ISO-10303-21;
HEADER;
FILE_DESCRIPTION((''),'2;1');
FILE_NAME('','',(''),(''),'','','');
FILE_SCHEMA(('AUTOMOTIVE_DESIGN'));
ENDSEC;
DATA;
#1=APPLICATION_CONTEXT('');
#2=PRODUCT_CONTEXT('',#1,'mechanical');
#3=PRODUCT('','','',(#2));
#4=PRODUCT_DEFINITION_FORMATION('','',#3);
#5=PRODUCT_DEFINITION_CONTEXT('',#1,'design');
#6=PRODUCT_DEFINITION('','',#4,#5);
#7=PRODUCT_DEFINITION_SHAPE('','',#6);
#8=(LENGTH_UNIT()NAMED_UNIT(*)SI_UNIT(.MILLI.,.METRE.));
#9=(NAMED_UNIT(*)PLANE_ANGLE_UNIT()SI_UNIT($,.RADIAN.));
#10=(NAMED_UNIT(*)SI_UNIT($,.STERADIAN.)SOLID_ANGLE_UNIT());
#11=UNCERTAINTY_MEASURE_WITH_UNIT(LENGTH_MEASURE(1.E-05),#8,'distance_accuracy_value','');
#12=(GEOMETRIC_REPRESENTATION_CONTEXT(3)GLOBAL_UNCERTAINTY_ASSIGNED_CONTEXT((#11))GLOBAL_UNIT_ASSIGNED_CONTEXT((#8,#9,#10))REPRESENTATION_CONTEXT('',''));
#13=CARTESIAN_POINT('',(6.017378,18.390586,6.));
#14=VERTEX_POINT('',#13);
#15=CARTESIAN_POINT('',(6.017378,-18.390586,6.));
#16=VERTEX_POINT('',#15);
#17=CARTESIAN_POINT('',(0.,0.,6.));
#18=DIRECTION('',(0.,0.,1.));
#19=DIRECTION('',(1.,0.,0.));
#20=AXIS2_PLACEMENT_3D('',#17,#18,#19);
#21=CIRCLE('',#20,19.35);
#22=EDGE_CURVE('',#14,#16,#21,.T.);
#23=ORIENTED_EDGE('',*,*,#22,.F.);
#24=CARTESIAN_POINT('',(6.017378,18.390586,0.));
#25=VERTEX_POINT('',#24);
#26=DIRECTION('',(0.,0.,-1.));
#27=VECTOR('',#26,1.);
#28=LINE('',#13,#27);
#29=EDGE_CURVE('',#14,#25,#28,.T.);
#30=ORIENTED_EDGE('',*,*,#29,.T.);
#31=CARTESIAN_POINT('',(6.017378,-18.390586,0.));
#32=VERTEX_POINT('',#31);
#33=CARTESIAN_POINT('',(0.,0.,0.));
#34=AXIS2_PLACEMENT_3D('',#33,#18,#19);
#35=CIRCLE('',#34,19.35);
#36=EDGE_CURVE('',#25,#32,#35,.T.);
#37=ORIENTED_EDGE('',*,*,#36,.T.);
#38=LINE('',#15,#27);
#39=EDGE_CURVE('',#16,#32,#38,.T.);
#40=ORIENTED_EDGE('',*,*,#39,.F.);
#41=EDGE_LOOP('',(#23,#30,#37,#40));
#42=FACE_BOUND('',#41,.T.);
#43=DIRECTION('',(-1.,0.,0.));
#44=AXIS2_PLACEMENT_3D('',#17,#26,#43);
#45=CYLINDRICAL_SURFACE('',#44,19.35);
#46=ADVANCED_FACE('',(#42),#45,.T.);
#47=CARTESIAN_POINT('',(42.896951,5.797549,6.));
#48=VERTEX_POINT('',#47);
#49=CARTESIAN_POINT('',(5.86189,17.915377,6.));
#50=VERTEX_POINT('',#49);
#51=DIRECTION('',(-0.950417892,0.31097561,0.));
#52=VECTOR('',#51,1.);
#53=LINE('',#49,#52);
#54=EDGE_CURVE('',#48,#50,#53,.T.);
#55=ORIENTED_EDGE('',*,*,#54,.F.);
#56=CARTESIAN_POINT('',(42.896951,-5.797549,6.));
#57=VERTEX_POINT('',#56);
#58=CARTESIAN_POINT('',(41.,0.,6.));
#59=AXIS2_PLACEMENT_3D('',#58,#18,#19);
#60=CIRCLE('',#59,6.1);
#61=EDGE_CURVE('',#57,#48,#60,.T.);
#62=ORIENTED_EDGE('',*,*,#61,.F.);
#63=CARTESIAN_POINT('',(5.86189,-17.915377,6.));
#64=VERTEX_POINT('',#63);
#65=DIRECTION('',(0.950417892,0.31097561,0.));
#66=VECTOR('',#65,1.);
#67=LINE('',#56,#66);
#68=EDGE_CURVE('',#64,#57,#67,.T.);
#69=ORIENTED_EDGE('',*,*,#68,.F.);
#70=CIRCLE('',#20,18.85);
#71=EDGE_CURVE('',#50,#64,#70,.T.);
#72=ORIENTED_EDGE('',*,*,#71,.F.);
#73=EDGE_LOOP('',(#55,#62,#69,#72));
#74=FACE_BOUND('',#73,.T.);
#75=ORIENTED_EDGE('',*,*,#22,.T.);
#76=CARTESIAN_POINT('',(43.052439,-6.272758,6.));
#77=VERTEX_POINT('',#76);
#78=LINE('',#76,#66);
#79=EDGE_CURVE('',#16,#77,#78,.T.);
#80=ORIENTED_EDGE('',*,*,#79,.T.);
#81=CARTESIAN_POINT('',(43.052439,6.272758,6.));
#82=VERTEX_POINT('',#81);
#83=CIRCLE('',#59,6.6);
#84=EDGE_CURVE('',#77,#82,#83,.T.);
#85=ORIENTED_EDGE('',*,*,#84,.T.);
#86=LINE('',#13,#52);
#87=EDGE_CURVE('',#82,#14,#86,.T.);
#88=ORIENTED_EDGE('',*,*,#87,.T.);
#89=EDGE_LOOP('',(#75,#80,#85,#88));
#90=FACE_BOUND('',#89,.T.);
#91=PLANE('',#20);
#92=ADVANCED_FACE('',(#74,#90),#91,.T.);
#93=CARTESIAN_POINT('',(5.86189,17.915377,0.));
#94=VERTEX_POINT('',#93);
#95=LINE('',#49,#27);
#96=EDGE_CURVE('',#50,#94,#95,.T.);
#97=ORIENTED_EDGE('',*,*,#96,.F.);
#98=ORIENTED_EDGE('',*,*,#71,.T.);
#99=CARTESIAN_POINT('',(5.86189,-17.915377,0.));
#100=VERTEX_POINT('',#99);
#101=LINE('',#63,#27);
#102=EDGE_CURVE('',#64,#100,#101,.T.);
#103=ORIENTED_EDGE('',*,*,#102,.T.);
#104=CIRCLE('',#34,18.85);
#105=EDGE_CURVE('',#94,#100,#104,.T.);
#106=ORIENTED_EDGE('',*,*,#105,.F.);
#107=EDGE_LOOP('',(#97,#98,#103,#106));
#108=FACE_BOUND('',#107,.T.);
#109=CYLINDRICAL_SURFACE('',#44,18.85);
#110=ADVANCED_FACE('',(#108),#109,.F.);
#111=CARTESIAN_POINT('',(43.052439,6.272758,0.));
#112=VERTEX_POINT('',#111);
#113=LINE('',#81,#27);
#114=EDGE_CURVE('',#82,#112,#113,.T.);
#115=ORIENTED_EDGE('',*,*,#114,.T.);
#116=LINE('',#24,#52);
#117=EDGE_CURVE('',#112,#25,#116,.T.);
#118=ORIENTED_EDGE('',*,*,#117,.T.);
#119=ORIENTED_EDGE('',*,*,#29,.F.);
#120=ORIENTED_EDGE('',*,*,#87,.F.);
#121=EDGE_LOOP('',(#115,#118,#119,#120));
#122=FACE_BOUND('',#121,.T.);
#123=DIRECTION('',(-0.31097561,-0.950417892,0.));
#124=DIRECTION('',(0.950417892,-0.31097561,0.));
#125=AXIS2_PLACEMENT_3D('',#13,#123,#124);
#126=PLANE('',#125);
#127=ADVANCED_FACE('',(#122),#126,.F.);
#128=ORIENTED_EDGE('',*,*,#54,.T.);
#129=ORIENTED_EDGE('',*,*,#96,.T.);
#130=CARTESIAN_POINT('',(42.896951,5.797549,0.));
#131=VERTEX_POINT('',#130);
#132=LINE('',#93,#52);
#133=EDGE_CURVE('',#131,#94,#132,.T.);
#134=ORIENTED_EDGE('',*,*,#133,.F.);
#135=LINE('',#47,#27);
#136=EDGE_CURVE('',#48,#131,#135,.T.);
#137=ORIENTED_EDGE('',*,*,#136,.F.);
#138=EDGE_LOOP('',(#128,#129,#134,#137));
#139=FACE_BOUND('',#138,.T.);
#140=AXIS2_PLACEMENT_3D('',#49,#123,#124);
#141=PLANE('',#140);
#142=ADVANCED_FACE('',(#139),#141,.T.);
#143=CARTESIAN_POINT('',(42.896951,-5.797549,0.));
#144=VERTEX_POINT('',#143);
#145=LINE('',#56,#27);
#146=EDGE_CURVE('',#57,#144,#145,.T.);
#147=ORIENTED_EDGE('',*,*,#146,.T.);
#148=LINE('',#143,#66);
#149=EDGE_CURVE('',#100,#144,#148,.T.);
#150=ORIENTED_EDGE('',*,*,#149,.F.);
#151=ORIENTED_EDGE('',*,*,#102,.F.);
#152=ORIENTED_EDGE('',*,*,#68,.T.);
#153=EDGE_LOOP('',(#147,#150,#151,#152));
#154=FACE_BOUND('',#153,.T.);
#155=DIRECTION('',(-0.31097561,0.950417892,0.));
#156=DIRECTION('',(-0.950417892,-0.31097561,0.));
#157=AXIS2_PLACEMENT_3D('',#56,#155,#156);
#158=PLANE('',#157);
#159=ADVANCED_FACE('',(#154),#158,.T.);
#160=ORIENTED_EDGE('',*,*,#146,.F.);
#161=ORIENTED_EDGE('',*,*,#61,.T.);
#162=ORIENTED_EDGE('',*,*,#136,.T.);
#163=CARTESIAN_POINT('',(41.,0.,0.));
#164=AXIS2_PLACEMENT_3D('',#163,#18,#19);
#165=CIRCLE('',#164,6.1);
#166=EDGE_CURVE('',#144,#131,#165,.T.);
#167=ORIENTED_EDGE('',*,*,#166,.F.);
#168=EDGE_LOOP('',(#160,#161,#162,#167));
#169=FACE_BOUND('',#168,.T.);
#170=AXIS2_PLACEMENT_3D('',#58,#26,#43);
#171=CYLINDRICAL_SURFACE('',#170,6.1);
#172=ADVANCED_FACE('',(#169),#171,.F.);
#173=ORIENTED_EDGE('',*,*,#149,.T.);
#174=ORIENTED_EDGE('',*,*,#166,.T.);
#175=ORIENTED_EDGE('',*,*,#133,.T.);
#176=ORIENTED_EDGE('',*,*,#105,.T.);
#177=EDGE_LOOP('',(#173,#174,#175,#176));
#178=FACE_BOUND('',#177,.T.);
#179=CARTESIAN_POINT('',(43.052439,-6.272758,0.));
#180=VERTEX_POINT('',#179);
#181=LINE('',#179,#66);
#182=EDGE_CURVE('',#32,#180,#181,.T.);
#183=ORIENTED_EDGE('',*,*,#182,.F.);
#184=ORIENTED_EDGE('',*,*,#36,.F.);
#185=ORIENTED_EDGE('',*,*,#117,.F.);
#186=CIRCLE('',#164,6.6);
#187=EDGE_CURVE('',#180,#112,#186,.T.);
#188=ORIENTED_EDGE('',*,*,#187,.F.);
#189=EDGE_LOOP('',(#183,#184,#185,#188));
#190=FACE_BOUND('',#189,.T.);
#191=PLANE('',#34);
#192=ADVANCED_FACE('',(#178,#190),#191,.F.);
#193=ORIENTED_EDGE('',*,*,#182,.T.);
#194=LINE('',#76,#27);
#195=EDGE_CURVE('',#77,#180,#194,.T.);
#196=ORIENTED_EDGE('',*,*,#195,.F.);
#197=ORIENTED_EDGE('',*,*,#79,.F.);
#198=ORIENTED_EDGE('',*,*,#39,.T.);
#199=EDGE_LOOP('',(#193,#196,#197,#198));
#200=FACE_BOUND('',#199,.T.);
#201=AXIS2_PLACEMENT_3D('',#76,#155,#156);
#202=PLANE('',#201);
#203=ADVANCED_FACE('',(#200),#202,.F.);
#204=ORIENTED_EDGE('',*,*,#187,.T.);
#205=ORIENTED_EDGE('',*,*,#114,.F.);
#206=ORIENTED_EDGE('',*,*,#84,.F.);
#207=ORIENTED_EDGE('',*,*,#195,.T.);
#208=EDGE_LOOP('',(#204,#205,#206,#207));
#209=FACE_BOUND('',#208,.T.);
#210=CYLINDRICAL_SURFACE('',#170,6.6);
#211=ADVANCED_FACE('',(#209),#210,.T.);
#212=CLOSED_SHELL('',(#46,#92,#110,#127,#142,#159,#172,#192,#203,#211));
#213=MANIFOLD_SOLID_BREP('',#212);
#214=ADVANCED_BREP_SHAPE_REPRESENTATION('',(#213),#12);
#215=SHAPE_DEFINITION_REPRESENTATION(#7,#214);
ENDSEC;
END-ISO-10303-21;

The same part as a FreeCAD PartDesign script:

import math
import FreeCAD as App
import Part
import Sketcher

V = App.Vector

doc = App.newDocument("Part")
body = doc.addObject("PartDesign::Body", "Body")

# Sketch on XY plane
sketch1 = body.newObject("Sketcher::SketchObject", "Sketch")
sketch1.AttachmentSupport = (doc.getObject("XY_Plane"), [""])
sketch1.MapMode = "FlatFace"
sketch1.addGeometry(Part.LineSegment(V(6, -18, 0), V(43, -6, 0)), False)
sketch1.addGeometry(Part.ArcOfCircle(Part.Circle(V(41, 0, 0), V(0, 0, 1), 7), math.radians(-72), math.radians(72)), False)
sketch1.addGeometry(Part.LineSegment(V(43, 6, 0), V(6, 18, 0)), False)
sketch1.addGeometry(Part.ArcOfCircle(Part.Circle(V(0, 0, 0), V(0, 0, 1), 19), math.radians(72), math.radians(288)), False)
sketch1.addGeometry(Part.LineSegment(V(6, 18, 0), V(43, 6, 0)), False)
sketch1.addGeometry(Part.ArcOfCircle(Part.Circle(V(41, 0, 0), V(0, 0, 1), 6), math.radians(-72), math.radians(72)), False)
sketch1.addGeometry(Part.LineSegment(V(43, -6, 0), V(6, -18, 0)), False)
sketch1.addGeometry(Part.ArcOfCircle(Part.Circle(V(0, 0, 0), V(0, 0, 1), 19), math.radians(72), math.radians(288)), False)
sketch1.addConstraint(Sketcher.Constraint("Tangent", 0, 2, 1, 1))
sketch1.addConstraint(Sketcher.Constraint("Tangent", 1, 2, 2, 1))
sketch1.addConstraint(Sketcher.Constraint("Tangent", 2, 2, 3, 1))
sketch1.addConstraint(Sketcher.Constraint("Tangent", 3, 2, 0, 1))
sketch1.addConstraint(Sketcher.Constraint("Tangent", 4, 2, 5, 2))
sketch1.addConstraint(Sketcher.Constraint("Tangent", 5, 1, 6, 1))
sketch1.addConstraint(Sketcher.Constraint("Tangent", 6, 2, 7, 2))
sketch1.addConstraint(Sketcher.Constraint("Tangent", 7, 1, 4, 1))
sketch1.addConstraint(Sketcher.Constraint("Coincident", 3, 3, -1, 1))
sketch1.addConstraint(Sketcher.Constraint("Coincident", 7, 3, -1, 1))
sketch1.addConstraint(Sketcher.Constraint("Coincident", 5, 3, 1, 3))
sketch1.addConstraint(Sketcher.Constraint("PointOnObject", 1, 3, -1))
sketch1.addConstraint(Sketcher.Constraint("Parallel", 2, 4))
sketch1.addConstraint(Sketcher.Constraint("Radius", 1, 6.6))
sketch1.addConstraint(Sketcher.Constraint("Radius", 5, 6.1))
sketch1.addConstraint(Sketcher.Constraint("Radius", 3, 19.35))
sketch1.addConstraint(Sketcher.Constraint("DistanceX", -1, 1, 1, 3, 41.0))
pad1 = body.newObject("PartDesign::Pad", "Pad")
pad1.Profile = sketch1
pad1.Length = 6

doc.recompute()
